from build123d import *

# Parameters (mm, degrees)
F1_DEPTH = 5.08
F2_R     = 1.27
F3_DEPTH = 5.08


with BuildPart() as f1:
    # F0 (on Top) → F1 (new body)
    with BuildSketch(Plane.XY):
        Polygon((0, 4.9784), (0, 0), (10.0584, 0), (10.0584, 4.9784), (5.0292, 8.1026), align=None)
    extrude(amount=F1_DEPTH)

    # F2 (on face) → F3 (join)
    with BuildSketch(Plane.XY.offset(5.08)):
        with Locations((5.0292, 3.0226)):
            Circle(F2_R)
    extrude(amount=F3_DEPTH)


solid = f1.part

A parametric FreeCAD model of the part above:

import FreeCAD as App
import Part
import Sketcher
Q = App.Units.Quantity


def add_polygon(sketch, points):
    """Adds a closed chain of lines whose ends are joined by coincident constraints."""
    first, n = sketch.GeometryCount, len(points)
    for a, b in zip(points, points[1:] + points[:1]):
        sketch.addGeometry(Part.LineSegment(App.Vector(*a, 0), App.Vector(*b, 0)), False)
    for i in range(n):
        sketch.addConstraint(Sketcher.Constraint("Coincident", first + i, 2, first + (i + 1) % n, 1))

doc = App.newDocument("Part")
params = doc.addObject("Spreadsheet::Sheet", "Params")
for row, (alias, value) in enumerate([
    ("sketch1_width", "0.396 in"),
    ("sketch1_height", "0.196 in"),
    ("pad1_length", "0.2 in"),
    ("sketch2_diameter", "0.1 in"),
    ("pad2_length", "0.2 in"),
], start=1):
    params.set(f"A{row}", alias)
    params.set(f"B{row}", "=" + value)
    params.setAlias(f"B{row}", alias)

body = doc.addObject("PartDesign::Body", "Body")

sketch1 = body.newObject("Sketcher::SketchObject", "Sketch")
sketch1.AttachmentSupport = (doc.getObject("XY_Plane"), [""])
sketch1.MapMode = "FlatFace"
add_polygon(sketch1, [(0, 5), (0, 0), (10.1, 0), (10.1, 5), (5, 8.1)])
sketch1.addConstraint(Sketcher.Constraint("Vertical", 0))
sketch1.addConstraint(Sketcher.Constraint("Horizontal", 1))
sketch1.addConstraint(Sketcher.Constraint("Vertical", 2))
sketch1.addConstraint(Sketcher.Constraint("Coincident", 0, 2, -1, 1))
sketch1.addConstraint(Sketcher.Constraint("Horizontal", 2, 2, 4, 2))
sketch1.addConstraint(Sketcher.Constraint("Equal", 3, 4))
sketch1.addConstraint(Sketcher.Constraint("DistanceX", 1, 1, 1, 2, Q("0.396 in")))
sketch1.addConstraint(Sketcher.Constraint("DistanceY", 0, 2, 0, 1, Q("0.196 in")))
sketch1.addConstraint(Sketcher.Constraint("DistanceY", -1, 1, 3, 2, Q("0.319 in")))
sketch1.setExpression("Constraints[11]", "Params.sketch1_width")
sketch1.setExpression("Constraints[12]", "Params.sketch1_height")
pad1 = body.newObject("PartDesign::Pad", "Pad")
pad1.Profile = sketch1
pad1.setExpression("Length", "Params.pad1_length")

sketch2 = body.newObject("Sketcher::SketchObject", "Sketch001")
sketch2.AttachmentSupport = (doc.getObject("XY_Plane"), [""])
sketch2.MapMode = "FlatFace"
sketch2.AttachmentOffset = App.Placement(App.Vector(0, 0, 0.2 * 25.4), App.Rotation())
sketch2.addGeometry(Part.Circle(App.Vector(5, 3, 0), App.Vector(0, 0, 1), 1.3), False)
sketch2.addConstraint(Sketcher.Constraint("Diameter", 0, Q("0.1 in")))
sketch2.addConstraint(Sketcher.Constraint("DistanceX", -1, 1, 0, 3, Q("0.198 in")))
sketch2.addConstraint(Sketcher.Constraint("DistanceY", -1, 1, 0, 3, Q("0.119 in")))
sketch2.setExpression("Constraints[0]", "Params.sketch2_diameter")
pad2 = body.newObject("PartDesign::Pad", "Pad001")
pad2.Profile = sketch2
pad2.setExpression("Length", "Params.pad2_length")

doc.recompute()
